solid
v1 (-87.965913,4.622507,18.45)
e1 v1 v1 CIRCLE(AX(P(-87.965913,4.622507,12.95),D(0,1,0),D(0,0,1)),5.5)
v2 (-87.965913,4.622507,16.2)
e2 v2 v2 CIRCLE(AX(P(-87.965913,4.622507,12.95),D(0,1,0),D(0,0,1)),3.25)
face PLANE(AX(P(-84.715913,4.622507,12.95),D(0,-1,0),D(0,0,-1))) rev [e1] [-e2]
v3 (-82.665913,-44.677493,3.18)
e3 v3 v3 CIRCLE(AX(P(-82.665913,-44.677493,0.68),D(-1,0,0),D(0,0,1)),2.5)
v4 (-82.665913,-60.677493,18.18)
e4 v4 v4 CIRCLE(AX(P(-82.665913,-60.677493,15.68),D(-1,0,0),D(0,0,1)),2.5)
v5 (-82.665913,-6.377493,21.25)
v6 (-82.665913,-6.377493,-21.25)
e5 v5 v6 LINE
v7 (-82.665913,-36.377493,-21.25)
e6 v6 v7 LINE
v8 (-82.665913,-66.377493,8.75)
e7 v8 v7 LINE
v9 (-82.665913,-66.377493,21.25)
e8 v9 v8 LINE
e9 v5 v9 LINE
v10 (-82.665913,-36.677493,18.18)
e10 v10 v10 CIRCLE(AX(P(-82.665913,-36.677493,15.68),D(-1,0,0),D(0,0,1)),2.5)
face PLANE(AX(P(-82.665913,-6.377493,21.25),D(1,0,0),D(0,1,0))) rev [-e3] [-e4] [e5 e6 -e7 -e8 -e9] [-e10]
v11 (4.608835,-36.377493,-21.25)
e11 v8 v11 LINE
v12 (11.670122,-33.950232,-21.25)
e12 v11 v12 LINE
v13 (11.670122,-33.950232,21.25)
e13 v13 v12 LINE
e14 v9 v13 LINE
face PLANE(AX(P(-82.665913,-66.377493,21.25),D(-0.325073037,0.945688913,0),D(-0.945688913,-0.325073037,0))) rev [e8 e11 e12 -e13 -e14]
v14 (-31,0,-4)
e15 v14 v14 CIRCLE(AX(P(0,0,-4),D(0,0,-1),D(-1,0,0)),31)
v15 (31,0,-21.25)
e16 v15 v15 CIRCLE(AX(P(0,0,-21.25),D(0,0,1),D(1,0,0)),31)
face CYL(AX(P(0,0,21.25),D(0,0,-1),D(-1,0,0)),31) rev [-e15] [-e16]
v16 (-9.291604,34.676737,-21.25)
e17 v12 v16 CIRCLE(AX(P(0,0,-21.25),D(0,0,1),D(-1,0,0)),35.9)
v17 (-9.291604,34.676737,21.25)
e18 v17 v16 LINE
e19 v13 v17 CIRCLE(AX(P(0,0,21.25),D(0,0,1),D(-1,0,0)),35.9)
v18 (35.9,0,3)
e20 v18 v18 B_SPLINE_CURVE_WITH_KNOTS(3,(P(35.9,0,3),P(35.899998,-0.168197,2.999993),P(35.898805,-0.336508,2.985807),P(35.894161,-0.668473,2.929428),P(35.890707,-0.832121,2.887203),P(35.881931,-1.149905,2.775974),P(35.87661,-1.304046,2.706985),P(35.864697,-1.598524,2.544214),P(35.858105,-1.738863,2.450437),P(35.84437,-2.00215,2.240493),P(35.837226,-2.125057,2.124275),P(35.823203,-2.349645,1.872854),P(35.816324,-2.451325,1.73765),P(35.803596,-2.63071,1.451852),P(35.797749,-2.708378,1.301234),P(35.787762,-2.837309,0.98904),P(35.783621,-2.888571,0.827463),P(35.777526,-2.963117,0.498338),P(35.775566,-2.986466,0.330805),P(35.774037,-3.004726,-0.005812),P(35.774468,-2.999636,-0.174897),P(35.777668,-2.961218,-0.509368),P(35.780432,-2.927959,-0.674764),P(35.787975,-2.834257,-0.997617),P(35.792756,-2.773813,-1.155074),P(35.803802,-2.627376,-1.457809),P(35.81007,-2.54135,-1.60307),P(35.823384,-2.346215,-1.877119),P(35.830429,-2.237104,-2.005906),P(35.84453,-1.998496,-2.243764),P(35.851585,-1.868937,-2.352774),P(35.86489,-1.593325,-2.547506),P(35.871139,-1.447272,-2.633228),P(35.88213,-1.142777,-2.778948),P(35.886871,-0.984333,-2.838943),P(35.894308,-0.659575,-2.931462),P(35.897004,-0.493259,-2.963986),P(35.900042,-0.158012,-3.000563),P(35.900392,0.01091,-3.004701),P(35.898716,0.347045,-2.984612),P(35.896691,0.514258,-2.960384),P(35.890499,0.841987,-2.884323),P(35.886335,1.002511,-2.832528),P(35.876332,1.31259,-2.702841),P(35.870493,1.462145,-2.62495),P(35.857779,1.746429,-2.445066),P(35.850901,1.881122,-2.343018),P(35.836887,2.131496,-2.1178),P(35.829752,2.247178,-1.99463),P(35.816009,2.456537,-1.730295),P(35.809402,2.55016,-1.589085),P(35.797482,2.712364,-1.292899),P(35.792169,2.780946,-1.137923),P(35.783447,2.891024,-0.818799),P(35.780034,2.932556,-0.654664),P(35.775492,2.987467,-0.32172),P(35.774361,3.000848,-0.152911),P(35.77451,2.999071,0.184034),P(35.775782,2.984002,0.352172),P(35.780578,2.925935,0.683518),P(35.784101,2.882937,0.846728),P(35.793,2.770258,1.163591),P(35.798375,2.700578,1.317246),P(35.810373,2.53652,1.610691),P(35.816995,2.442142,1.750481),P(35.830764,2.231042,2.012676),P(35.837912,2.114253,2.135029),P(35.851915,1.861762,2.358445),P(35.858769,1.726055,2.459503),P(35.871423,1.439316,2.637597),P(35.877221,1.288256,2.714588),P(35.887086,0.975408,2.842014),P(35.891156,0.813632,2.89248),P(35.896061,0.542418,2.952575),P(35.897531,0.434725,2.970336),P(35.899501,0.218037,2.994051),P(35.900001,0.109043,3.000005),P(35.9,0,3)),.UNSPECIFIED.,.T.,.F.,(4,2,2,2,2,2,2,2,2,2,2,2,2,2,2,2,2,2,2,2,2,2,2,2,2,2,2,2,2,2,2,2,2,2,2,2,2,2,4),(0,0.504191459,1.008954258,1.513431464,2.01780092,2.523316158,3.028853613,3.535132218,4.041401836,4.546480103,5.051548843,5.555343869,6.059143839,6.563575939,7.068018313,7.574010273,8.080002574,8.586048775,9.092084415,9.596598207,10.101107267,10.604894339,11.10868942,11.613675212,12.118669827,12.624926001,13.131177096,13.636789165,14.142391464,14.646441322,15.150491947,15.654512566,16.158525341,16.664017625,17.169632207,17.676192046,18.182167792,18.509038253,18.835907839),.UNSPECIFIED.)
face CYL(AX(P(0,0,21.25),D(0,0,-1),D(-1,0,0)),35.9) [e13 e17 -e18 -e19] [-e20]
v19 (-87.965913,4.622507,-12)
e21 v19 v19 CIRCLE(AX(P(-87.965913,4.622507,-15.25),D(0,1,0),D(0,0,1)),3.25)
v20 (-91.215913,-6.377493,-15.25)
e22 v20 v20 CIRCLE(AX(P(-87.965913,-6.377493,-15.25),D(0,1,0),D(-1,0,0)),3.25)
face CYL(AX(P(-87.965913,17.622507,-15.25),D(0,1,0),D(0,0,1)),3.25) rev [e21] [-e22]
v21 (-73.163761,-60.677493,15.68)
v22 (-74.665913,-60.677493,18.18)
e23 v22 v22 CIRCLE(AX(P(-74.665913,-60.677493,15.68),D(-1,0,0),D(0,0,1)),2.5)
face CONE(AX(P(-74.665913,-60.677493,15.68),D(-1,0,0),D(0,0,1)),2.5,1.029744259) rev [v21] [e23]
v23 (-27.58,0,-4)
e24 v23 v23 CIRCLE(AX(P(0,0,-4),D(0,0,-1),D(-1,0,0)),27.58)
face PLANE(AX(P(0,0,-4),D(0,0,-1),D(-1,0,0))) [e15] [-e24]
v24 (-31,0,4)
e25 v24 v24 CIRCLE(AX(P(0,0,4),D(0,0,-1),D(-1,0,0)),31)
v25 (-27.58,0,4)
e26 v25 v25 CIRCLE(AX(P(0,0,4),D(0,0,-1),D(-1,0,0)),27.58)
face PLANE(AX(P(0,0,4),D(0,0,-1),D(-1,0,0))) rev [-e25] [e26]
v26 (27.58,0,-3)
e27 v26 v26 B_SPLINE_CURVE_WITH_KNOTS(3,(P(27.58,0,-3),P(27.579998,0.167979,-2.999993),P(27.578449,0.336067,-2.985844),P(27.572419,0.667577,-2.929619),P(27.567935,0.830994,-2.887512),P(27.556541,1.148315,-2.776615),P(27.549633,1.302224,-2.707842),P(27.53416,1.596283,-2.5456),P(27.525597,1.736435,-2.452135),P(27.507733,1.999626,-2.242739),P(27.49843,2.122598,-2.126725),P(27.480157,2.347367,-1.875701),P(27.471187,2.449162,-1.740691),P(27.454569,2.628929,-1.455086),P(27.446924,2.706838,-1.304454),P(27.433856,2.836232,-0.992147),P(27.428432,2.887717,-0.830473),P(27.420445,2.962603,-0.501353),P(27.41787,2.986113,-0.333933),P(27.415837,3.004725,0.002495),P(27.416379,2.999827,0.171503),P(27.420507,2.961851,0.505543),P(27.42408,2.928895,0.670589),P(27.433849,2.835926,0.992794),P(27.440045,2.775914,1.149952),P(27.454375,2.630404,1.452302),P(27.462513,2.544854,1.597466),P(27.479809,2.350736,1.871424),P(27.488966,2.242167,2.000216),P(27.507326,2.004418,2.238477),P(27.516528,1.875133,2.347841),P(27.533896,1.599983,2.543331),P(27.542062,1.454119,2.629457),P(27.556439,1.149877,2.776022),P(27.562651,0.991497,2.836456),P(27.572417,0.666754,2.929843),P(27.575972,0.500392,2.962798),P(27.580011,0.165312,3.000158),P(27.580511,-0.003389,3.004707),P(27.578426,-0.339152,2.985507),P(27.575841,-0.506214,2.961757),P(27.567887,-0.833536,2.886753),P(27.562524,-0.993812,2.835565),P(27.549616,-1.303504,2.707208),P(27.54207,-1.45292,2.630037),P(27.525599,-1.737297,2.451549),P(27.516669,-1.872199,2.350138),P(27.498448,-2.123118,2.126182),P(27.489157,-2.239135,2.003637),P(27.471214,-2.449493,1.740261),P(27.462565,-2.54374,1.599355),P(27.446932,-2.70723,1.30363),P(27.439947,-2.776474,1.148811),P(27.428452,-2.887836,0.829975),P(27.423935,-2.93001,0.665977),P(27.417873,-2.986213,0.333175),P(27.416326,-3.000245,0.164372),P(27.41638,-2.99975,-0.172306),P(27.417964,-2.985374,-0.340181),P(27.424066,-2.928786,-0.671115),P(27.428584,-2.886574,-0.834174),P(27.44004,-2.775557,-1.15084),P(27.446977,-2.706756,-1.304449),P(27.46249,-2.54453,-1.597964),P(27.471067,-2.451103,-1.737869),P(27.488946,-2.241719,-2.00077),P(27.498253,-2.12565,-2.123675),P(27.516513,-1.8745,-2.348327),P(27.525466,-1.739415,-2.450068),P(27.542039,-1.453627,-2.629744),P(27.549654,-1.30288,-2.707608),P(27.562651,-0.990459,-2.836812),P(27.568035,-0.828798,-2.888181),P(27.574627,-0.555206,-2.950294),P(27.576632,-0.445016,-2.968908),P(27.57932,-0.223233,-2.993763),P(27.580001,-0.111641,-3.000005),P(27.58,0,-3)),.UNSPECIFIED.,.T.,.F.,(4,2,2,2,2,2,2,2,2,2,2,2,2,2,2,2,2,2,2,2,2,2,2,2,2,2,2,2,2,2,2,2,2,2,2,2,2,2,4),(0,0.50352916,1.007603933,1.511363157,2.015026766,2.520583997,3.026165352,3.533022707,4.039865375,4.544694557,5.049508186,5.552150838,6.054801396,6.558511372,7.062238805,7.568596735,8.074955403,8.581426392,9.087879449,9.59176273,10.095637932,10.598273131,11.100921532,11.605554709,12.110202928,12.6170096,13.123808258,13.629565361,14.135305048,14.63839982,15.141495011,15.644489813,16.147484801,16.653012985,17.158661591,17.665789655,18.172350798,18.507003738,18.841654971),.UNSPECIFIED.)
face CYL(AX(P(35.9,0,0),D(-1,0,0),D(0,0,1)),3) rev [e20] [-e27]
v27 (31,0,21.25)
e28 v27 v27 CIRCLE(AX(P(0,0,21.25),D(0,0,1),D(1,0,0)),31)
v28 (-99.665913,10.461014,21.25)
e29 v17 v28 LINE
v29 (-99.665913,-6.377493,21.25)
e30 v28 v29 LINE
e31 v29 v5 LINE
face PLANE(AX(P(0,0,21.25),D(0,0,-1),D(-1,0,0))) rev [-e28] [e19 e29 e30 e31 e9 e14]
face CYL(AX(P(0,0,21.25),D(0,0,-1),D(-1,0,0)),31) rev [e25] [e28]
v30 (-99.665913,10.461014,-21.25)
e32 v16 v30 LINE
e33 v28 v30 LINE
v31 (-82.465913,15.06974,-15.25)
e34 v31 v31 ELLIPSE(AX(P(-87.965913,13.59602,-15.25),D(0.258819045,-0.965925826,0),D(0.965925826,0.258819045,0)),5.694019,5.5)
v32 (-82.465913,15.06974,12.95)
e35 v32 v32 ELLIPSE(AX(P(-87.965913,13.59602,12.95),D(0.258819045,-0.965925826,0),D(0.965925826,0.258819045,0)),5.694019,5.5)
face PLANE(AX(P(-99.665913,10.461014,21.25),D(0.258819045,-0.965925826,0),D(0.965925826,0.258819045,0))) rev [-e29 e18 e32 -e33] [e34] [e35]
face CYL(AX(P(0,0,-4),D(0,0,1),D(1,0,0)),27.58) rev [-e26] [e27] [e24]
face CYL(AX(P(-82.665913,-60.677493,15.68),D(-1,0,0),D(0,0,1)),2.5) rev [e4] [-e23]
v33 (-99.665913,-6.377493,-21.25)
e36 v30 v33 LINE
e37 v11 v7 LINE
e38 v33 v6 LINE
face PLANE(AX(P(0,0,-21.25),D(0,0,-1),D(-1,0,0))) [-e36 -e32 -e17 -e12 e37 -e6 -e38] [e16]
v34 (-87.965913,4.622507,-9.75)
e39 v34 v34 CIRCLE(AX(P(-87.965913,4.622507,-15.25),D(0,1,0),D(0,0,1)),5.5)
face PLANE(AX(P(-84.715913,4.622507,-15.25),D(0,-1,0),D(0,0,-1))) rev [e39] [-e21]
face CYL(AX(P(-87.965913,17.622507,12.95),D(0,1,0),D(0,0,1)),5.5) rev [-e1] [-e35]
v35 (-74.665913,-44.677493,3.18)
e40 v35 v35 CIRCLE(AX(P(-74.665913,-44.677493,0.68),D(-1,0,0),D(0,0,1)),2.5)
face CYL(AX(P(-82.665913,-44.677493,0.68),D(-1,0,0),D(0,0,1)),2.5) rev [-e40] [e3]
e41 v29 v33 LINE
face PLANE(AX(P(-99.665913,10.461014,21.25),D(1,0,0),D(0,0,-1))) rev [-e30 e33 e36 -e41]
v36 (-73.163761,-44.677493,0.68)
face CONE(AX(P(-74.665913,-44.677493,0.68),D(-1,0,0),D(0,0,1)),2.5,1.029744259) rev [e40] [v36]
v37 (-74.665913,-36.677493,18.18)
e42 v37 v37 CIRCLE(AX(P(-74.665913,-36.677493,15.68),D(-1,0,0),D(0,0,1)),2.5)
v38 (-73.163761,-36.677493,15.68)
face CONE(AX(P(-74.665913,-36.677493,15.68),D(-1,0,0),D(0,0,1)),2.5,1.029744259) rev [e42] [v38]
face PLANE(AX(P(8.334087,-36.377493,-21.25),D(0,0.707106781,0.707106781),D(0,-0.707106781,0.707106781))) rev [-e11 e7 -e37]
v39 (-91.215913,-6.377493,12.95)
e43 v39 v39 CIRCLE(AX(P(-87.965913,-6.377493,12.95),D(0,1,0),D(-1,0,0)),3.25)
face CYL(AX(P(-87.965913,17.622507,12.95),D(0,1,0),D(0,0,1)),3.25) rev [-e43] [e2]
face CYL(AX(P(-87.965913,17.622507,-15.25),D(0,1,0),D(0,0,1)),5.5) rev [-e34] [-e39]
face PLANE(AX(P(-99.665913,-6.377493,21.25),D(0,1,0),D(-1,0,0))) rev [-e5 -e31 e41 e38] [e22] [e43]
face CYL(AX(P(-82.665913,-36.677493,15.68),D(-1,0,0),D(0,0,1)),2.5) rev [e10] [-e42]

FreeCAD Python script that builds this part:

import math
import FreeCAD as App
import Part
import Sketcher
from FreeCAD import Vector
Q = App.Units.Quantity

doc = App.newDocument("Part")
params = doc.addObject("Spreadsheet::Sheet", "Params")
for row, (alias, value) in enumerate([
    ("sketch1_diameter", "62 mm"),
    ("sketch1_radius", "35.9 mm"),
    ("sketch1_width", "17 mm"),
    ("sketch1_height", "60 mm"),
    ("pad1_length", "42.5 mm"),
    ("sketch2_width", "30 mm"),
    ("pocket1_length", "91 mm"),
    ("sketch3_diameter", "5 mm"),
    ("hole_diameter", "5 mm"),
    ("hole_depth", "8 mm"),
    ("sketch4_diameter", "6.5 mm"),
    ("hole2_diameter", "6.5 mm"),
    ("hole2_cbore_diameter", "11 mm"),
    ("hole2_cbore_depth", "13 mm"),
    ("sketch5_diameter", "62 mm"),
    ("sketch5_diameter2", "55.16 mm"),
    ("pad2_length", "8 mm"),
    ("sketch6_diameter", "6 mm"),
], start=1):
    params.set(f"A{row}", alias)
    params.set(f"B{row}", "=" + value)
    params.setAlias(f"B{row}", alias)

body = doc.addObject("PartDesign::Body", "Body")

# Sketch on XY plane
sketch1 = body.newObject("Sketcher::SketchObject", "Sketch")
sketch1.AttachmentSupport = (doc.getObject("XY_Plane"), [""])
sketch1.MapMode = "FlatFace"
sketch1.addGeometry([
    Part.LineSegment(Vector(-100, 10, 0), Vector(-100, -6, 0)),  # 0
    Part.LineSegment(Vector(-100, -6, 0), Vector(-83, -6, 0)),  # 1
    Part.LineSegment(Vector(-83, -6, 0), Vector(-83, -66, 0)),  # 2
    Part.LineSegment(Vector(-83, -66, 0), Vector(12, -34, 0)),  # 3
    Part.ArcOfCircle(Part.Circle(Vector(0, 0, 0), Vector(0, 0, 1), 36), math.radians(-71), math.radians(105)),  # 4
    Part.LineSegment(Vector(-9, 35, 0), Vector(-100, 10, 0)),  # 5
    Part.Circle(Vector(0, 0, 0), Vector(0, 0, 1), 31),  # 6
], False)
sketch1.addConstraint([
    Sketcher.Constraint("Coincident", 0, 2, 1, 1),
    Sketcher.Constraint("Coincident", 1, 2, 2, 1),
    Sketcher.Constraint("Coincident", 2, 2, 3, 1),
    Sketcher.Constraint("Tangent", 3, 2, 4, 1),
    Sketcher.Constraint("Tangent", 4, 2, 5, 1),
    Sketcher.Constraint("Coincident", 5, 2, 0, 1),
    Sketcher.Constraint("Vertical", 0),
    Sketcher.Constraint("Horizontal", 1),
    Sketcher.Constraint("Vertical", 2),
    Sketcher.Constraint("Coincident", 4, 3, -1, 1),
    Sketcher.Constraint("Coincident", 6, 3, -1, 1),
    Sketcher.Constraint("Diameter", 6, Q("62 mm")),
    Sketcher.Constraint("Radius", 4, Q("35.9 mm")),
    Sketcher.Constraint("DistanceX", 1, 1, 1, 2, Q("17 mm")),
    Sketcher.Constraint("DistanceY", 2, 2, 2, 1, Q("60 mm")),
    Sketcher.Constraint("Angle", 5, Q("-165 deg")),
    Sketcher.Constraint("Angle", 3, Q("18.97 deg")),
    Sketcher.Constraint("Distance", 3, Q("99.75377 mm")),
])
sketch1.setExpression("Constraints[11]", "Params.sketch1_diameter")
sketch1.setExpression("Constraints[12]", "Params.sketch1_radius")
sketch1.setExpression("Constraints[13]", "Params.sketch1_width")
sketch1.setExpression("Constraints[14]", "Params.sketch1_height")
pad1 = body.newObject("PartDesign::Pad", "Pad")
pad1.Profile = sketch1
pad1.setExpression("Length", "Params.pad1_length")
pad1.Midplane = True

# Sketch on YZ plane
sketch2 = body.newObject("Sketcher::SketchObject", "Sketch001")
sketch2.AttachmentSupport = (doc.getObject("YZ_Plane"), [""])
sketch2.MapMode = "FlatFace"
sketch2.AttachmentOffset = App.Placement(Vector(0, 0, -82.665913), App.Rotation())
sketch2.addGeometry([
    Part.LineSegment(Vector(-66, -21, 0), Vector(-66, 9, 0)),
    Part.LineSegment(Vector(-66, 9, 0), Vector(-36, -21, 0)),
    Part.LineSegment(Vector(-36, -21, 0), Vector(-66, -21, 0)),
], False)
sketch2.addConstraint([
    Sketcher.Constraint("Coincident", 0, 2, 1, 1),
    Sketcher.Constraint("Coincident", 1, 2, 2, 1),
    Sketcher.Constraint("Coincident", 2, 2, 0, 1),
    Sketcher.Constraint("Vertical", 0),
    Sketcher.Constraint("Horizontal", 2),
    Sketcher.Constraint("Equal", 2, 0),
    Sketcher.Constraint("DistanceX", 2, 2, 2, 1, Q("30 mm")),
    Sketcher.Constraint("DistanceY", -1, 1, 0, 2, Q("8.75 mm")),
    Sketcher.Constraint("DistanceX", 0, 2, -1, 1, Q("66.377493 mm")),
])
sketch2.setExpression("Constraints[6]", "Params.sketch2_width")
pocket1 = body.newObject("PartDesign::Pocket", "Pocket")
pocket1.Profile = sketch2
pocket1.setExpression("Length", "Params.pocket1_length")
pocket1.Reversed = True

# Sketch on YZ plane
sketch3 = body.newObject("Sketcher::SketchObject", "Sketch002")
sketch3.AttachmentSupport = (doc.getObject("YZ_Plane"), [""])
sketch3.MapMode = "FlatFace"
sketch3.AttachmentOffset = App.Placement(Vector(0, 0, -82.665913), App.Rotation())
sketch3.addGeometry([
    Part.Circle(Vector(-60.7, 15.7, 0), Vector(0, 0, 1), 2.5),  # 0
    Part.Circle(Vector(-36.7, 15.7, 0), Vector(0, 0, 1), 2.5),  # 1
    Part.Circle(Vector(36.8, -98.6, 0), Vector(0, 0, 1), 2.5),  # 2
    Part.Circle(Vector(-44.7, 0.7, 0), Vector(0, 0, 1), 2.5),  # 3
    Part.Circle(Vector(-82.2, 35.6, 0), Vector(0, 0, 1), 2.5),  # 4
], False)
sketch3.addConstraint([
    Sketcher.Constraint("Equal", 0, 1),
    Sketcher.Constraint("Equal", 1, 2),
    Sketcher.Constraint("Equal", 2, 3),
    Sketcher.Constraint("Equal", 3, 4),
    Sketcher.Constraint("Horizontal", 0, 3, 1, 3),
    Sketcher.Constraint("Diameter", 0, Q("5 mm")),
    Sketcher.Constraint("DistanceX", 0, 3, 1, 3, Q("24 mm")),
    Sketcher.Constraint("DistanceX", 3, 3, 1, 3, Q("8 mm")),
    Sketcher.Constraint("DistanceY", 3, 3, 1, 3, Q("15 mm")),
    Sketcher.Constraint("DistanceY", -1, 1, 4, 3, Q("35.6 mm")),
    Sketcher.Constraint("DistanceY", -1, 1, 0, 3, Q("15.68 mm")),
    Sketcher.Constraint("DistanceX", -1, 1, 2, 3, Q("36.760601 mm")),
    Sketcher.Constraint("DistanceX", 0, 3, -1, 1, Q("60.677493 mm")),
    Sketcher.Constraint("DistanceY", 2, 3, -1, 1, Q("98.628383 mm")),
    Sketcher.Constraint("DistanceX", 4, 3, -1, 1, Q("82.217865 mm")),
])
sketch3.setExpression("Constraints[5]", "Params.sketch3_diameter")
doc.recompute()
hole = body.newObject("PartDesign::Hole", "Hole")
hole.Profile = sketch3
hole.ThreadType = "None"
hole.setExpression("Diameter", "Params.hole_diameter")
hole.DepthType = "Dimension"
hole.setExpression("Depth", "Params.hole_depth")
hole.DrillPoint = "Angled"
hole.DrillPointAngle = 118
hole.Reversed = True

# Sketch on XZ plane
sketch4 = body.newObject("Sketcher::SketchObject", "Sketch003")
sketch4.AttachmentSupport = (doc.getObject("XZ_Plane"), [""])
sketch4.MapMode = "FlatFace"
sketch4.AttachmentOffset = App.Placement(Vector(0, 0, -17.622507), App.Rotation())
sketch4.addGeometry([
    Part.Circle(Vector(-88, -15.2, 0), Vector(0, 0, 1), 3.2),
    Part.Circle(Vector(-88, 12.9, 0), Vector(0, 0, 1), 3.2),
], False)
sketch4.addConstraint([
    Sketcher.Constraint("Equal", 0, 1),
    Sketcher.Constraint("Vertical", 0, 3, 1, 3),
    Sketcher.Constraint("Diameter", 0, Q("6.5 mm")),
    Sketcher.Constraint("DistanceY", 0, 3, 1, 3, Q("28.2 mm")),
    Sketcher.Constraint("DistanceY", 0, 3, -1, 1, Q("15.25 mm")),
    Sketcher.Constraint("DistanceX", 0, 3, -1, 1, Q("87.965913 mm")),
])
sketch4.setExpression("Constraints[2]", "Params.sketch4_diameter")
doc.recompute()
hole2 = body.newObject("PartDesign::Hole", "Hole001")
hole2.Profile = sketch4
hole2.ThreadType = "None"
hole2.setExpression("Diameter", "Params.hole2_diameter")
hole2.DepthType = "ThroughAll"
hole2.HoleCutType = "Counterbore"
hole2.setExpression("HoleCutDiameter", "Params.hole2_cbore_diameter")
hole2.setExpression("HoleCutDepth", "Params.hole2_cbore_depth")
hole2.Reversed = True

# Sketch on XY plane
sketch5 = body.newObject("Sketcher::SketchObject", "Sketch004")
sketch5.AttachmentSupport = (doc.getObject("XY_Plane"), [""])
sketch5.MapMode = "FlatFace"
sketch5.addGeometry([
    Part.Circle(Vector(0, 0, 0), Vector(0, 0, 1), 31),
    Part.Circle(Vector(0, 0, 0), Vector(0, 0, 1), 28),
], False)
sketch5.addConstraint([
    Sketcher.Constraint("Coincident", 0, 3, -1, 1),
    Sketcher.Constraint("Coincident", 1, 3, -1, 1),
    Sketcher.Constraint("Diameter", 0, Q("62 mm")),
    Sketcher.Constraint("Diameter", 1, Q("55.16 mm")),
])
sketch5.setExpression("Constraints[2]", "Params.sketch5_diameter")
sketch5.setExpression("Constraints[3]", "Params.sketch5_diameter2")
pad2 = body.newObject("PartDesign::Pad", "Pad001")
pad2.Profile = sketch5
pad2.setExpression("Length", "Params.pad2_length")
pad2.Midplane = True

# Sketch on YZ plane
sketch6 = body.newObject("Sketcher::SketchObject", "Sketch005")
sketch6.AttachmentSupport = (doc.getObject("YZ_Plane"), [""])
sketch6.MapMode = "FlatFace"
sketch6.addGeometry(Part.Circle(Vector(0, 0, 0), Vector(0, 0, 1), 3), False)
sketch6.addConstraint([
    Sketcher.Constraint("Coincident", 0, 3, -1, 1),
    Sketcher.Constraint("Diameter", 0, Q("6 mm")),
])
sketch6.setExpression("Constraints[1]", "Params.sketch6_diameter")
pocket2 = body.newObject("PartDesign::Pocket", "Pocket001")
pocket2.Profile = sketch6
pocket2.Type = "ThroughAll"
pocket2.Reversed = True

doc.recompute()
